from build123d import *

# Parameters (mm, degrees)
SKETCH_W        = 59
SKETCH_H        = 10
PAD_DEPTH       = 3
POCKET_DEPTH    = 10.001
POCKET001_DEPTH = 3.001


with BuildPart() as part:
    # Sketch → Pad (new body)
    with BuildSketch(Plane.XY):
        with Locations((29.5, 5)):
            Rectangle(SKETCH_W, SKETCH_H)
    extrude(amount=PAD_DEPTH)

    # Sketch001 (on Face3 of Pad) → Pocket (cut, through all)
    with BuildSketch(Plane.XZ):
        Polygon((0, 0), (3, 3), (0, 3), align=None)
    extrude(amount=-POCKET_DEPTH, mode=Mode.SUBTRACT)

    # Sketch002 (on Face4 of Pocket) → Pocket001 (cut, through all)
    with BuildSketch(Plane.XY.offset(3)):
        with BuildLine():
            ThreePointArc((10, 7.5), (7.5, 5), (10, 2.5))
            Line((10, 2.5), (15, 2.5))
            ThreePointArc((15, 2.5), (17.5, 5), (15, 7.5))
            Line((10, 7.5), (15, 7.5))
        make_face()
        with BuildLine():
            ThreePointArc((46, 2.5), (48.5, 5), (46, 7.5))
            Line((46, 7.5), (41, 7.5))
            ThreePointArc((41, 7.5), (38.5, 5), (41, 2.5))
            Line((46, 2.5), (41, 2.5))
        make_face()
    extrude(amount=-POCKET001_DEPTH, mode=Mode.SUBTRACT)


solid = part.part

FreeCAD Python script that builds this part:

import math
import FreeCAD as App
import Part
import Sketcher

V = App.Vector
Q = App.Units.Quantity


def add_polygon(sketch, points):
    """Adds a closed chain of lines whose ends are joined by coincident constraints."""
    first, n = sketch.GeometryCount, len(points)
    for a, b in zip(points, points[1:] + points[:1]):
        sketch.addGeometry(Part.LineSegment(App.Vector(*a, 0), App.Vector(*b, 0)), False)
    for i in range(n):
        sketch.addConstraint(Sketcher.Constraint("Coincident", first + i, 2, first + (i + 1) % n, 1))

doc = App.newDocument("Part")
params = doc.addObject("Spreadsheet::Sheet", "Params")
for row, (alias, value) in enumerate([
    ("sketch1_width", "59 mm"),
    ("sketch1_height", "10 mm"),
    ("pad1_length", "3 mm"),
    ("sketch2_width", "3 mm"),
    ("sketch3_radius", "2.5 mm"),
    ("sketch3_width", "5 mm"),
], start=1):
    params.set(f"A{row}", alias)
    params.set(f"B{row}", "=" + value)
    params.setAlias(f"B{row}", alias)

body = doc.addObject("PartDesign::Body", "Body")

# Sketch on XY plane
sketch1 = body.newObject("Sketcher::SketchObject", "Sketch")
sketch1.AttachmentSupport = (doc.getObject("XY_Plane"), [""])
sketch1.MapMode = "FlatFace"
add_polygon(sketch1, [(0, 10), (0, 0), (59, 0), (59, 10)])  # lines 0-3
sketch1.addConstraint([
    Sketcher.Constraint("Vertical", 0),
    Sketcher.Constraint("Horizontal", 1),
    Sketcher.Constraint("Vertical", 2),
    Sketcher.Constraint("Horizontal", 3),
    Sketcher.Constraint("Coincident", 0, 2, -1, 1),
    Sketcher.Constraint("DistanceX", 1, 1, 1, 2, Q("59 mm")),
    Sketcher.Constraint("DistanceY", 0, 2, 0, 1, Q("10 mm")),
])
sketch1.setExpression("Constraints[9]", "Params.sketch1_width")
sketch1.setExpression("Constraints[10]", "Params.sketch1_height")
pad1 = body.newObject("PartDesign::Pad", "Pad")
pad1.Profile = sketch1
pad1.setExpression("Length", "Params.pad1_length")

# Sketch on XZ plane
sketch2 = body.newObject("Sketcher::SketchObject", "Sketch001")
sketch2.AttachmentSupport = (doc.getObject("XZ_Plane"), [""])
sketch2.MapMode = "FlatFace"
add_polygon(sketch2, [(0, 0), (3, 3), (0, 3)])  # lines 0-2
sketch2.addConstraint([
    Sketcher.Constraint("Horizontal", 1),
    Sketcher.Constraint("Vertical", 2),
    Sketcher.Constraint("Coincident", 2, 2, -1, 1),
    Sketcher.Constraint("Equal", 1, 2),
    Sketcher.Constraint("DistanceX", 1, 2, 1, 1, Q("3 mm")),
])
sketch2.setExpression("Constraints[7]", "Params.sketch2_width")
pocket1 = body.newObject("PartDesign::Pocket", "Pocket")
pocket1.Profile = sketch2
pocket1.Type = "ThroughAll"

# Sketch on XY plane
sketch3 = body.newObject("Sketcher::SketchObject", "Sketch002")
sketch3.AttachmentSupport = (doc.getObject("XY_Plane"), [""])
sketch3.MapMode = "FlatFace"
sketch3.AttachmentOffset = App.Placement(V(0, 0, 3), App.Rotation())
sketch3.addGeometry([
    Part.ArcOfCircle(Part.Circle(V(10, 5, 0), V(0, 0, 1), 2.5), math.radians(90), math.radians(270)),  # 0
    Part.LineSegment(V(10, 2.5, 0), V(15, 2.5, 0)),  # 1
    Part.ArcOfCircle(Part.Circle(V(15, 5, 0), V(0, 0, 1), 2.5), math.radians(-90), math.radians(90)),  # 2
    Part.LineSegment(V(15, 7.5, 0), V(10, 7.5, 0)),  # 3
    Part.ArcOfCircle(Part.Circle(V(46, 5, 0), V(0, 0, 1), 2.5), math.radians(-90), math.radians(90)),  # 4
    Part.LineSegment(V(46, 7.5, 0), V(41, 7.5, 0)),  # 5
    Part.ArcOfCircle(Part.Circle(V(41, 5, 0), V(0, 0, 1), 2.5), math.radians(90), math.radians(270)),  # 6
    Part.LineSegment(V(41, 2.5, 0), V(46, 2.5, 0)),  # 7
], False)
sketch3.addConstraint([
    Sketcher.Constraint("Tangent", 0, 2, 1, 1),
    Sketcher.Constraint("Tangent", 1, 2, 2, 1),
    Sketcher.Constraint("Tangent", 2, 2, 3, 1),
    Sketcher.Constraint("Tangent", 3, 2, 0, 1),
    Sketcher.Constraint("Tangent", 4, 2, 5, 1),
    Sketcher.Constraint("Tangent", 5, 2, 6, 1),
    Sketcher.Constraint("Tangent", 6, 2, 7, 1),
    Sketcher.Constraint("Tangent", 7, 2, 4, 1),
    Sketcher.Constraint("Horizontal", 1),
    Sketcher.Constraint("Horizontal", 3),
    Sketcher.Constraint("Horizontal", 5),
    Sketcher.Constraint("Horizontal", 7),
    Sketcher.Constraint("Equal", 2, 4),
    Sketcher.Constraint("Horizontal", 2, 3, 4, 3),
    Sketcher.Constraint("Equal", 3, 5),
    Sketcher.Constraint("Radius", 0, Q("2.5 mm")),
    Sketcher.Constraint("DistanceX", 1, 1, 1, 2, Q("5 mm")),
    Sketcher.Constraint("DistanceX", -1, 1, 0, 3, Q("10 mm")),
    Sketcher.Constraint("DistanceY", -1, 1, 0, 3, Q("5 mm")),
    Sketcher.Constraint("DistanceX", -1, 1, 4, 3, Q("46 mm")),
])
sketch3.setExpression("Constraints[15]", "Params.sketch3_radius")
sketch3.setExpression("Constraints[16]", "Params.sketch3_width")
pocket2 = body.newObject("PartDesign::Pocket", "Pocket001")
pocket2.Profile = sketch3
pocket2.Type = "ThroughAll"

doc.recompute()
